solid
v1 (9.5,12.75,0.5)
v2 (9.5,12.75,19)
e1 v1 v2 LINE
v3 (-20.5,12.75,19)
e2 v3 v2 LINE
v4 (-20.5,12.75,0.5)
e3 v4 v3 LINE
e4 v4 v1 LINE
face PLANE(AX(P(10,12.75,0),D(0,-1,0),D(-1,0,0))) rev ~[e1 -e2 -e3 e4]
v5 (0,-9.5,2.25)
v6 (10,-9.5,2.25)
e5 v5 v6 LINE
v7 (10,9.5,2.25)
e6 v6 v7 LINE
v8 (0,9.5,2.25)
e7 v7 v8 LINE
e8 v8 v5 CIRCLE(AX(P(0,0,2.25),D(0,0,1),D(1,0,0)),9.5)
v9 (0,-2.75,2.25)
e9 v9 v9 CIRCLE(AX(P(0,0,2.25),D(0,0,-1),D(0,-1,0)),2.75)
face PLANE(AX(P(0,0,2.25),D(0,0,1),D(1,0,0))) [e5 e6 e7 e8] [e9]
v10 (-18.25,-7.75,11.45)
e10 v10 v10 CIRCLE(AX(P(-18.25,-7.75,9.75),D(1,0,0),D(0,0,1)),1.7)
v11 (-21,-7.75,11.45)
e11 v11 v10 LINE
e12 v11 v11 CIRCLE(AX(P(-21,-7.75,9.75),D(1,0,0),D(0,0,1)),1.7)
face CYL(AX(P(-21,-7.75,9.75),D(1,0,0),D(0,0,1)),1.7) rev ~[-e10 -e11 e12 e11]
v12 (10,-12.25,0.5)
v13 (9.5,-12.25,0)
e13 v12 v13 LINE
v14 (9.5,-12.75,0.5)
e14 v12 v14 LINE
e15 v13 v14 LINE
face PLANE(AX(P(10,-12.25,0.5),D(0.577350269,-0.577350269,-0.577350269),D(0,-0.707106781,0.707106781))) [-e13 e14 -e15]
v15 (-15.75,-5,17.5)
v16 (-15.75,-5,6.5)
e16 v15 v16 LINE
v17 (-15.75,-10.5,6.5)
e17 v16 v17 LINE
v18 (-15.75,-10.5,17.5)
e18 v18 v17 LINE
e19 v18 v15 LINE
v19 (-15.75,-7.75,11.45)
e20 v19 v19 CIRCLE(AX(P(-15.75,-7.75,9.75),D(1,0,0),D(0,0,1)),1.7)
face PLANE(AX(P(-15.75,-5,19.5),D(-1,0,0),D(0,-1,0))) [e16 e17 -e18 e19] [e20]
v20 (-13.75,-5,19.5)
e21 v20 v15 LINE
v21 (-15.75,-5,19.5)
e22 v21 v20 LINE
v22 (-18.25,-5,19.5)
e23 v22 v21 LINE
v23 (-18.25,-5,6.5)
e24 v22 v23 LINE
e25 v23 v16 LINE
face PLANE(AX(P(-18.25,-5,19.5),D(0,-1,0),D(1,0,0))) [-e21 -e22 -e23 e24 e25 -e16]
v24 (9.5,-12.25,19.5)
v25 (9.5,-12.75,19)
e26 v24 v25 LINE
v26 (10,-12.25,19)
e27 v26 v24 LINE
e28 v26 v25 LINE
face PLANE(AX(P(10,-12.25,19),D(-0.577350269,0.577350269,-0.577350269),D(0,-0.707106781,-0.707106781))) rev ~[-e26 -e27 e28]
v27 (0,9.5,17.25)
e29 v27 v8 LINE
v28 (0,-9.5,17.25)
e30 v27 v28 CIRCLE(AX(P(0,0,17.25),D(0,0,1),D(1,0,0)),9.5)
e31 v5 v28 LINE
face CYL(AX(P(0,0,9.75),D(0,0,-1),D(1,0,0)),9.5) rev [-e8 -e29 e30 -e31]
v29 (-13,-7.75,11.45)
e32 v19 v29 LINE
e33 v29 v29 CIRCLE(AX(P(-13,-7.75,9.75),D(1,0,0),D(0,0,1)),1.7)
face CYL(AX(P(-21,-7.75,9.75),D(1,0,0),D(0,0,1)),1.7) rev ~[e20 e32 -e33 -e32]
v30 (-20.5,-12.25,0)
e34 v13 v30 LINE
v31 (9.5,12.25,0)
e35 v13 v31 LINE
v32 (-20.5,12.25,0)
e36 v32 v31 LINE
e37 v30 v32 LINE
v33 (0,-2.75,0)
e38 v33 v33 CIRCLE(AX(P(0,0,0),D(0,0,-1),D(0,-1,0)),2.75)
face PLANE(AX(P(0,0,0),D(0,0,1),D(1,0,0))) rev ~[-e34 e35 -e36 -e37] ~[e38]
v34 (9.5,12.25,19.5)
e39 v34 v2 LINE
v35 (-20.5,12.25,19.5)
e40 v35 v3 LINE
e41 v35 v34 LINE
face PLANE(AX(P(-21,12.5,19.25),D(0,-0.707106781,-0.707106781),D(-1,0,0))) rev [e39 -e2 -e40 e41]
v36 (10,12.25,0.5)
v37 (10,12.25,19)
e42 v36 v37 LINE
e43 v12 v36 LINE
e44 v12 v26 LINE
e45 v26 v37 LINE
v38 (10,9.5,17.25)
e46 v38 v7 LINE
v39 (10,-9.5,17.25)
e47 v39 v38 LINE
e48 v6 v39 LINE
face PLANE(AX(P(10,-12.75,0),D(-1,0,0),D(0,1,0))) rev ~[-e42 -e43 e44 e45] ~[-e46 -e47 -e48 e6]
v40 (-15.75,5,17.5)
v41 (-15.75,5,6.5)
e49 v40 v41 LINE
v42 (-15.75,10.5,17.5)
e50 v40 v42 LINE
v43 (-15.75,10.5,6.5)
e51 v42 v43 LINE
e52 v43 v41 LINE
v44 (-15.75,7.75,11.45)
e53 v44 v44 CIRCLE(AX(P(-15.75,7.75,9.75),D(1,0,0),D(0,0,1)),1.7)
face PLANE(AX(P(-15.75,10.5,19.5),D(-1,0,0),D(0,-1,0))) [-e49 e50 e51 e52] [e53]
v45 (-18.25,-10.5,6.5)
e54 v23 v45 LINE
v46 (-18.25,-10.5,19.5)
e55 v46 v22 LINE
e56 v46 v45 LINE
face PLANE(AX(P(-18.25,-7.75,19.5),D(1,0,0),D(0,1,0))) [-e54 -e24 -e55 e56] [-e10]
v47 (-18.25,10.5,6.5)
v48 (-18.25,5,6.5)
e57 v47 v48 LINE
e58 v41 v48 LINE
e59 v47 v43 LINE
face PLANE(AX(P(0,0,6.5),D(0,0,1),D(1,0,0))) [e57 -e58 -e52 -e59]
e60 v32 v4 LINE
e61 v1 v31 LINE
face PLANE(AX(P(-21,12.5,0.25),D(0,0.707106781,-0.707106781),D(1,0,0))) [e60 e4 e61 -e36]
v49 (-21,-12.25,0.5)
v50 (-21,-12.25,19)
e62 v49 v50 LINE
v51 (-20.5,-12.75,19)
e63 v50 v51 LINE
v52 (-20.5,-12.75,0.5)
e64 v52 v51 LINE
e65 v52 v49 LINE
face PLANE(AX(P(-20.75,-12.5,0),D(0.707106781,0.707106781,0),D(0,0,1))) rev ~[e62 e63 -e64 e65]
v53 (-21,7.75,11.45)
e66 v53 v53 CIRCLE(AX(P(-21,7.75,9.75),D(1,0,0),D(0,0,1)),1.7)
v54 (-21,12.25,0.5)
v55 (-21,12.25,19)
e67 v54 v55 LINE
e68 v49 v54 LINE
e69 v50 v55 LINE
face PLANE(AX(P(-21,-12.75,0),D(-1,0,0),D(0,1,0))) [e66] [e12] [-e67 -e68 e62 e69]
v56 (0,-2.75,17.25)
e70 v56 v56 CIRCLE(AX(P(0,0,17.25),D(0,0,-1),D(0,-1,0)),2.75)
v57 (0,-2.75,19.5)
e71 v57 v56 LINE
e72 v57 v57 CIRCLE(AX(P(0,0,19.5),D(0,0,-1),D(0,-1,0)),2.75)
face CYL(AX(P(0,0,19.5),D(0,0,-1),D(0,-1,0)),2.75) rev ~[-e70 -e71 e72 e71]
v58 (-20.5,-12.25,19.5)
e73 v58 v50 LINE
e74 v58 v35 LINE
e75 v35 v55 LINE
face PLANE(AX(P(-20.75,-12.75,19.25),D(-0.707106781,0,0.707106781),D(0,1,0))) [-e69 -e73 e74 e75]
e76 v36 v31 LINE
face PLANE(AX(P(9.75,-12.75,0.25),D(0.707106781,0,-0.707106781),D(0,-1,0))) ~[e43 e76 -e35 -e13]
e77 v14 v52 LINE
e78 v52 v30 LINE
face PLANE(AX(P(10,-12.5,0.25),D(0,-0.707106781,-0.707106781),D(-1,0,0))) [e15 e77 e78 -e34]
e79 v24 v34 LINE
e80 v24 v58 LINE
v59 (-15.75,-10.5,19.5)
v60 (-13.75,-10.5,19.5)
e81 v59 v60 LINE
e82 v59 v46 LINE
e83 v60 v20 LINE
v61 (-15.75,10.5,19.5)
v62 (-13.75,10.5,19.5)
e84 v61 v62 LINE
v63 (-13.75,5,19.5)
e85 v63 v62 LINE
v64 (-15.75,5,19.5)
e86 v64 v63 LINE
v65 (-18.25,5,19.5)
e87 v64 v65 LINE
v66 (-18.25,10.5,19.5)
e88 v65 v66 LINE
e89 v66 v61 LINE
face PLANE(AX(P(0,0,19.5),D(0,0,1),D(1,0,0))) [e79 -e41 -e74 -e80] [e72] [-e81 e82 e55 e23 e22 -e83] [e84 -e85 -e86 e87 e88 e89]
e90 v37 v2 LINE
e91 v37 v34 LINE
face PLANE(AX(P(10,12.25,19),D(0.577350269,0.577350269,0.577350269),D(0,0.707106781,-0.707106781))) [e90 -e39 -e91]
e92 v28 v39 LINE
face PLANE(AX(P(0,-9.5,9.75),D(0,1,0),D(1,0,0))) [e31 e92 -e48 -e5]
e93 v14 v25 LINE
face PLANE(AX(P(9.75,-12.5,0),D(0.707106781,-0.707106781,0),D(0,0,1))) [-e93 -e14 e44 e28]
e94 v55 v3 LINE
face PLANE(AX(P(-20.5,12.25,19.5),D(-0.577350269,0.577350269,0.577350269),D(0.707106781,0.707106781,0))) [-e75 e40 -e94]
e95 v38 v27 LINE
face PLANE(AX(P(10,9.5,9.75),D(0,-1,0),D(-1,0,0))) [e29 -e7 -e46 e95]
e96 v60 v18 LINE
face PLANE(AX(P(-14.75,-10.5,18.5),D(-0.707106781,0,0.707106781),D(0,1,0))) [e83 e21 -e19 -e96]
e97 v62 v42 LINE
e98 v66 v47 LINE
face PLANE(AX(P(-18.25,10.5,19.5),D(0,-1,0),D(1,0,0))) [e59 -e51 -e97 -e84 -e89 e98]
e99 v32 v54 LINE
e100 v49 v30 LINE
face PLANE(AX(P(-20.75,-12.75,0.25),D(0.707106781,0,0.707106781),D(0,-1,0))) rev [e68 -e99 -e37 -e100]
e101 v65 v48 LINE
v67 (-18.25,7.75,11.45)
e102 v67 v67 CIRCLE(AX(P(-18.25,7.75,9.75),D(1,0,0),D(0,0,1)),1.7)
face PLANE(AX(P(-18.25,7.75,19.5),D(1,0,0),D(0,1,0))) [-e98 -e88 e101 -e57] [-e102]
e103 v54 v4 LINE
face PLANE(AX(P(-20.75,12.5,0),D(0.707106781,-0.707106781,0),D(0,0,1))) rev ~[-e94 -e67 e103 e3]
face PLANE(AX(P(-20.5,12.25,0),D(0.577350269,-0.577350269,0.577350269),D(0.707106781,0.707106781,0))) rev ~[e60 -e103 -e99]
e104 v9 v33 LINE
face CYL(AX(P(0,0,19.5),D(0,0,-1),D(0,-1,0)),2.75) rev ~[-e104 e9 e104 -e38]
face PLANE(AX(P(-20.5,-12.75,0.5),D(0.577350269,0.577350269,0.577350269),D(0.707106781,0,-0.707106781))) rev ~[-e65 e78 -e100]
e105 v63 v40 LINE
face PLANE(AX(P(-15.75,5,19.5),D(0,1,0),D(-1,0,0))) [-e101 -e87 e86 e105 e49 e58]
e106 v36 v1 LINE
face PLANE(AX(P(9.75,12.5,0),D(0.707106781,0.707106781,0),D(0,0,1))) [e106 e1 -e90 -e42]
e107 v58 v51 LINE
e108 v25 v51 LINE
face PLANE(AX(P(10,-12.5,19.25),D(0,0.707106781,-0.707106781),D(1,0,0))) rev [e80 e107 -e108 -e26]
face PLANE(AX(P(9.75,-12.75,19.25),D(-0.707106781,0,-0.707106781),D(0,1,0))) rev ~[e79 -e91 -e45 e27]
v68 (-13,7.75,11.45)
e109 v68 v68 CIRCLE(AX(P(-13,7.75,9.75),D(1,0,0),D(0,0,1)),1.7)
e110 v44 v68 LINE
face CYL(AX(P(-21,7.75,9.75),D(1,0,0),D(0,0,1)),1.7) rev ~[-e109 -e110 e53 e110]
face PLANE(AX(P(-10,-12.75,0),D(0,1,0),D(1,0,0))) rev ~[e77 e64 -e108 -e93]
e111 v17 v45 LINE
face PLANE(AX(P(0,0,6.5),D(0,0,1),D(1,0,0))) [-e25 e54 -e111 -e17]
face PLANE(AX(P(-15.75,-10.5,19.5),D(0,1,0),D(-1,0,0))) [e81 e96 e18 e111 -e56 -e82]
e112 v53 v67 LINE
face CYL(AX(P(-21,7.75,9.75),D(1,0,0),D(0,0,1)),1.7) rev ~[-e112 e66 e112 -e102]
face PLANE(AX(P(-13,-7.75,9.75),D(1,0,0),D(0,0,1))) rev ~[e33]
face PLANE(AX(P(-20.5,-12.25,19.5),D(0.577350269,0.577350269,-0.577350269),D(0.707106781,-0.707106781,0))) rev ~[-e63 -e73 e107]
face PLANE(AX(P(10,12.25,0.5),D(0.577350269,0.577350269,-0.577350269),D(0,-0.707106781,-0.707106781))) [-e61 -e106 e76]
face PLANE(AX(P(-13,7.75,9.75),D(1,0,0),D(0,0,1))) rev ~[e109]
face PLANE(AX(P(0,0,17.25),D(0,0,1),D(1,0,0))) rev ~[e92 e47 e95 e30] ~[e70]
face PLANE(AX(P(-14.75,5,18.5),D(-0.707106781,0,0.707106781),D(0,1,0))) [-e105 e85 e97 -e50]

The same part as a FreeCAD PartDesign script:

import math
import FreeCAD as App
import Part
import Sketcher

V = App.Vector


def edges_at(feature, points):
    """Names of the edges that pass closest to the given points."""
    edges = feature.Shape.Edges
    near = lambda p: min(range(len(edges)), key=lambda i: edges[i].distToShape(Part.Vertex(*p))[0])
    return sorted({f"Edge{near(p) + 1}" for p in points})

doc = App.newDocument("Part")
body = doc.addObject("PartDesign::Body", "Body")

# Sketch on XY plane
sketch1 = doc.addObject("Sketcher::SketchObject", "Sketch")
body.addObject(sketch1)
sketch1.AttachmentSupport = (doc.XY_Plane, [""])
sketch1.MapMode = "FlatFace"
sketch1.addGeometry([
    Part.LineSegment(V(10, 13, 0), V(-21, 13, 0)),
    Part.LineSegment(V(-21, 13, 0), V(-21, -13, 0)),
    Part.LineSegment(V(-21, -13, 0), V(10, -13, 0)),
    Part.LineSegment(V(10, -13, 0), V(10, 13, 0)),
], False)
sketch1.addConstraint([
    Sketcher.Constraint("Coincident", 0, 2, 1, 1),
    Sketcher.Constraint("Coincident", 1, 2, 2, 1),
    Sketcher.Constraint("Coincident", 2, 2, 3, 1),
    Sketcher.Constraint("Coincident", 3, 2, 0, 1),
    Sketcher.Constraint("Horizontal", 0),
    Sketcher.Constraint("Vertical", 1),
    Sketcher.Constraint("Horizontal", 2),
    Sketcher.Constraint("Vertical", 3),
    Sketcher.Constraint("DistanceY", 1, 2, 1, 1, 25.5),
    Sketcher.Constraint("DistanceX", 0, 2, 0, 1, 31.0),
    Sketcher.Constraint("DistanceX", 0, 2, -1, 1, 21.0),
    Sketcher.Constraint("DistanceY", -1, 1, 0, 2, 12.75),
])
pad1 = doc.addObject("PartDesign::Pad", "Pad")
body.addObject(pad1)
pad1.Profile = sketch1
pad1.Length = 19.5

# Sketch on XY plane
sketch2 = doc.addObject("Sketcher::SketchObject", "Sketch001")
body.addObject(sketch2)
sketch2.AttachmentSupport = (doc.XY_Plane, [""])
sketch2.MapMode = "FlatFace"
sketch2.AttachmentOffset = App.Placement(V(0, 0, 9.75), App.Rotation())
sketch2.addGeometry([
    Part.ArcOfCircle(Part.Circle(V(0, 0, 0), V(0, 0, 1), 10), math.radians(90), math.radians(270)),
    Part.LineSegment(V(0, -10, 0), V(10, -10, 0)),
    Part.LineSegment(V(10, -10, 0), V(10, 10, 0)),
    Part.LineSegment(V(10, 10, 0), V(0, 10, 0)),
], False)
sketch2.addConstraint([
    Sketcher.Constraint("Tangent", 0, 2, 1, 1),
    Sketcher.Constraint("Coincident", 1, 2, 2, 1),
    Sketcher.Constraint("Coincident", 2, 2, 3, 1),
    Sketcher.Constraint("Tangent", 3, 2, 0, 1),
    Sketcher.Constraint("Horizontal", 1),
    Sketcher.Constraint("Vertical", 2),
    Sketcher.Constraint("Horizontal", 3),
    Sketcher.Constraint("Coincident", 0, 3, -1, 1),
    Sketcher.Constraint("Radius", 0, 9.5),
    Sketcher.Constraint("DistanceX", 1, 1, 1, 2, 10.0),
])
pocket1 = doc.addObject("PartDesign::Pocket", "Pocket")
body.addObject(pocket1)
pocket1.Profile = sketch2
pocket1.Length = 15
pocket1.Midplane = True

# Sketch on XY plane
sketch3 = doc.addObject("Sketcher::SketchObject", "Sketch002")
body.addObject(sketch3)
sketch3.AttachmentSupport = (doc.XY_Plane, [""])
sketch3.MapMode = "FlatFace"
sketch3.AttachmentOffset = App.Placement(V(0, 0, 19.5), App.Rotation())
sketch3.addGeometry(Part.Circle(V(0, 0, 0), V(0, 0, 1), 2.8), False)
sketch3.addConstraint([
    Sketcher.Constraint("Coincident", 0, 3, -1, 1),
    Sketcher.Constraint("Diameter", 0, 5.5),
])
doc.recompute()
hole = doc.addObject("PartDesign::Hole", "Hole")
body.addObject(hole)
hole.Profile = sketch3
hole.ThreadType = "None"
hole.Diameter = 5.5
hole.DepthType = "ThroughAll"

# Sketch on YZ plane
sketch4 = doc.addObject("Sketcher::SketchObject", "Sketch003")
body.addObject(sketch4)
sketch4.AttachmentSupport = (doc.YZ_Plane, [""])
sketch4.MapMode = "FlatFace"
sketch4.AttachmentOffset = App.Placement(V(0, 0, -21), App.Rotation())
sketch4.addGeometry([
    Part.Circle(V(7.8, 9.8, 0), V(0, 0, 1), 1.7),
    Part.Circle(V(-7.8, 9.8, 0), V(0, 0, 1), 1.7),
], False)
sketch4.addConstraint([
    Sketcher.Constraint("Equal", 0, 1),
    Sketcher.Constraint("Symmetric", 0, 3, 1, 3, -2),
    Sketcher.Constraint("Diameter", 0, 3.4),
    Sketcher.Constraint("DistanceX", 1, 3, 0, 3, 15.5),
    Sketcher.Constraint("DistanceY", -1, 1, 0, 3, 9.75),
])
doc.recompute()
hole2 = doc.addObject("PartDesign::Hole", "Hole001")
body.addObject(hole2)
hole2.Profile = sketch4
hole2.ThreadType = "None"
hole2.Diameter = 3.4
hole2.DepthType = "Dimension"
hole2.Depth = 8
hole2.DrillPoint = "Flat"
hole2.Reversed = True

# Sketch on XY plane
sketch5 = doc.addObject("Sketcher::SketchObject", "Sketch004")
body.addObject(sketch5)
sketch5.AttachmentSupport = (doc.XY_Plane, [""])
sketch5.MapMode = "FlatFace"
sketch5.AttachmentOffset = App.Placement(V(0, 0, 19.5), App.Rotation())
sketch5.addGeometry([
    Part.LineSegment(V(-18.2, 10.5, 0), V(-18.2, 5, 0)),  # 0
    Part.LineSegment(V(-18.2, 5, 0), V(-15.8, 5, 0)),  # 1
    Part.LineSegment(V(-15.8, 5, 0), V(-15.8, 10.5, 0)),  # 2
    Part.LineSegment(V(-15.8, 10.5, 0), V(-18.2, 10.5, 0)),  # 3
    Part.LineSegment(V(-18.2, -5, 0), V(-18.2, -10.5, 0)),  # 4
    Part.LineSegment(V(-18.2, -10.5, 0), V(-15.8, -10.5, 0)),  # 5
    Part.LineSegment(V(-15.8, -10.5, 0), V(-15.8, -5, 0)),  # 6
    Part.LineSegment(V(-15.8, -5, 0), V(-18.2, -5, 0)),  # 7
], False)
sketch5.addConstraint([
    Sketcher.Constraint("Coincident", 0, 2, 1, 1),
    Sketcher.Constraint("Coincident", 1, 2, 2, 1),
    Sketcher.Constraint("Coincident", 2, 2, 3, 1),
    Sketcher.Constraint("Coincident", 3, 2, 0, 1),
    Sketcher.Constraint("Coincident", 4, 2, 5, 1),
    Sketcher.Constraint("Coincident", 5, 2, 6, 1),
    Sketcher.Constraint("Coincident", 6, 2, 7, 1),
    Sketcher.Constraint("Coincident", 7, 2, 4, 1),
    Sketcher.Constraint("Vertical", 0),
    Sketcher.Constraint("Horizontal", 1),
    Sketcher.Constraint("Vertical", 2),
    Sketcher.Constraint("Horizontal", 3),
    Sketcher.Constraint("Vertical", 4),
    Sketcher.Constraint("Horizontal", 5),
    Sketcher.Constraint("Vertical", 6),
    Sketcher.Constraint("Horizontal", 7),
    Sketcher.Constraint("Symmetric", 3, 2, 4, 2, -1),
    Sketcher.Constraint("Symmetric", 1, 2, 6, 2, -1),
    Sketcher.Constraint("DistanceX", 1, 1, 1, 2, 2.5),
    Sketcher.Constraint("DistanceY", 0, 2, 0, 1, 5.5),
    Sketcher.Constraint("DistanceY", -1, 1, 0, 2, 5.0),
    Sketcher.Constraint("DistanceX", 0, 2, -1, 1, 18.25),
])
pocket2 = doc.addObject("PartDesign::Pocket", "Pocket001")
body.addObject(pocket2)
pocket2.Profile = sketch5
pocket2.Length = 13
doc.recompute()

chamfer = doc.addObject("PartDesign::Chamfer", "Chamfer")
body.addObject(chamfer)
chamfer.Base = (pocket2, edges_at(pocket2, [(-15.75, 7.75, 19.5), (-15.75, -7.75, 19.5)]))
chamfer.Size = 2
doc.recompute()

chamfer2 = doc.addObject("PartDesign::Chamfer", "Chamfer001")
body.addObject(chamfer2)
chamfer2.Base = (chamfer, edges_at(chamfer, [
    (-21, 12.75, 9.75),
    (-21, 0, 0),
    (-21, -12.75, 9.75),
    (-21, 0, 19.5),
    (-5.5, 12.75, 19.5),
    (-5.5, 12.75, 0),
    (-5.5, -12.75, 0),
    (-5.5, -12.75, 19.5),
    (10, 0, 19.5),
    (10, 12.75, 9.75),
    (10, 0, 0),
    (10, -12.75, 9.75),
]))
chamfer2.Size = 0.5

doc.recompute()
